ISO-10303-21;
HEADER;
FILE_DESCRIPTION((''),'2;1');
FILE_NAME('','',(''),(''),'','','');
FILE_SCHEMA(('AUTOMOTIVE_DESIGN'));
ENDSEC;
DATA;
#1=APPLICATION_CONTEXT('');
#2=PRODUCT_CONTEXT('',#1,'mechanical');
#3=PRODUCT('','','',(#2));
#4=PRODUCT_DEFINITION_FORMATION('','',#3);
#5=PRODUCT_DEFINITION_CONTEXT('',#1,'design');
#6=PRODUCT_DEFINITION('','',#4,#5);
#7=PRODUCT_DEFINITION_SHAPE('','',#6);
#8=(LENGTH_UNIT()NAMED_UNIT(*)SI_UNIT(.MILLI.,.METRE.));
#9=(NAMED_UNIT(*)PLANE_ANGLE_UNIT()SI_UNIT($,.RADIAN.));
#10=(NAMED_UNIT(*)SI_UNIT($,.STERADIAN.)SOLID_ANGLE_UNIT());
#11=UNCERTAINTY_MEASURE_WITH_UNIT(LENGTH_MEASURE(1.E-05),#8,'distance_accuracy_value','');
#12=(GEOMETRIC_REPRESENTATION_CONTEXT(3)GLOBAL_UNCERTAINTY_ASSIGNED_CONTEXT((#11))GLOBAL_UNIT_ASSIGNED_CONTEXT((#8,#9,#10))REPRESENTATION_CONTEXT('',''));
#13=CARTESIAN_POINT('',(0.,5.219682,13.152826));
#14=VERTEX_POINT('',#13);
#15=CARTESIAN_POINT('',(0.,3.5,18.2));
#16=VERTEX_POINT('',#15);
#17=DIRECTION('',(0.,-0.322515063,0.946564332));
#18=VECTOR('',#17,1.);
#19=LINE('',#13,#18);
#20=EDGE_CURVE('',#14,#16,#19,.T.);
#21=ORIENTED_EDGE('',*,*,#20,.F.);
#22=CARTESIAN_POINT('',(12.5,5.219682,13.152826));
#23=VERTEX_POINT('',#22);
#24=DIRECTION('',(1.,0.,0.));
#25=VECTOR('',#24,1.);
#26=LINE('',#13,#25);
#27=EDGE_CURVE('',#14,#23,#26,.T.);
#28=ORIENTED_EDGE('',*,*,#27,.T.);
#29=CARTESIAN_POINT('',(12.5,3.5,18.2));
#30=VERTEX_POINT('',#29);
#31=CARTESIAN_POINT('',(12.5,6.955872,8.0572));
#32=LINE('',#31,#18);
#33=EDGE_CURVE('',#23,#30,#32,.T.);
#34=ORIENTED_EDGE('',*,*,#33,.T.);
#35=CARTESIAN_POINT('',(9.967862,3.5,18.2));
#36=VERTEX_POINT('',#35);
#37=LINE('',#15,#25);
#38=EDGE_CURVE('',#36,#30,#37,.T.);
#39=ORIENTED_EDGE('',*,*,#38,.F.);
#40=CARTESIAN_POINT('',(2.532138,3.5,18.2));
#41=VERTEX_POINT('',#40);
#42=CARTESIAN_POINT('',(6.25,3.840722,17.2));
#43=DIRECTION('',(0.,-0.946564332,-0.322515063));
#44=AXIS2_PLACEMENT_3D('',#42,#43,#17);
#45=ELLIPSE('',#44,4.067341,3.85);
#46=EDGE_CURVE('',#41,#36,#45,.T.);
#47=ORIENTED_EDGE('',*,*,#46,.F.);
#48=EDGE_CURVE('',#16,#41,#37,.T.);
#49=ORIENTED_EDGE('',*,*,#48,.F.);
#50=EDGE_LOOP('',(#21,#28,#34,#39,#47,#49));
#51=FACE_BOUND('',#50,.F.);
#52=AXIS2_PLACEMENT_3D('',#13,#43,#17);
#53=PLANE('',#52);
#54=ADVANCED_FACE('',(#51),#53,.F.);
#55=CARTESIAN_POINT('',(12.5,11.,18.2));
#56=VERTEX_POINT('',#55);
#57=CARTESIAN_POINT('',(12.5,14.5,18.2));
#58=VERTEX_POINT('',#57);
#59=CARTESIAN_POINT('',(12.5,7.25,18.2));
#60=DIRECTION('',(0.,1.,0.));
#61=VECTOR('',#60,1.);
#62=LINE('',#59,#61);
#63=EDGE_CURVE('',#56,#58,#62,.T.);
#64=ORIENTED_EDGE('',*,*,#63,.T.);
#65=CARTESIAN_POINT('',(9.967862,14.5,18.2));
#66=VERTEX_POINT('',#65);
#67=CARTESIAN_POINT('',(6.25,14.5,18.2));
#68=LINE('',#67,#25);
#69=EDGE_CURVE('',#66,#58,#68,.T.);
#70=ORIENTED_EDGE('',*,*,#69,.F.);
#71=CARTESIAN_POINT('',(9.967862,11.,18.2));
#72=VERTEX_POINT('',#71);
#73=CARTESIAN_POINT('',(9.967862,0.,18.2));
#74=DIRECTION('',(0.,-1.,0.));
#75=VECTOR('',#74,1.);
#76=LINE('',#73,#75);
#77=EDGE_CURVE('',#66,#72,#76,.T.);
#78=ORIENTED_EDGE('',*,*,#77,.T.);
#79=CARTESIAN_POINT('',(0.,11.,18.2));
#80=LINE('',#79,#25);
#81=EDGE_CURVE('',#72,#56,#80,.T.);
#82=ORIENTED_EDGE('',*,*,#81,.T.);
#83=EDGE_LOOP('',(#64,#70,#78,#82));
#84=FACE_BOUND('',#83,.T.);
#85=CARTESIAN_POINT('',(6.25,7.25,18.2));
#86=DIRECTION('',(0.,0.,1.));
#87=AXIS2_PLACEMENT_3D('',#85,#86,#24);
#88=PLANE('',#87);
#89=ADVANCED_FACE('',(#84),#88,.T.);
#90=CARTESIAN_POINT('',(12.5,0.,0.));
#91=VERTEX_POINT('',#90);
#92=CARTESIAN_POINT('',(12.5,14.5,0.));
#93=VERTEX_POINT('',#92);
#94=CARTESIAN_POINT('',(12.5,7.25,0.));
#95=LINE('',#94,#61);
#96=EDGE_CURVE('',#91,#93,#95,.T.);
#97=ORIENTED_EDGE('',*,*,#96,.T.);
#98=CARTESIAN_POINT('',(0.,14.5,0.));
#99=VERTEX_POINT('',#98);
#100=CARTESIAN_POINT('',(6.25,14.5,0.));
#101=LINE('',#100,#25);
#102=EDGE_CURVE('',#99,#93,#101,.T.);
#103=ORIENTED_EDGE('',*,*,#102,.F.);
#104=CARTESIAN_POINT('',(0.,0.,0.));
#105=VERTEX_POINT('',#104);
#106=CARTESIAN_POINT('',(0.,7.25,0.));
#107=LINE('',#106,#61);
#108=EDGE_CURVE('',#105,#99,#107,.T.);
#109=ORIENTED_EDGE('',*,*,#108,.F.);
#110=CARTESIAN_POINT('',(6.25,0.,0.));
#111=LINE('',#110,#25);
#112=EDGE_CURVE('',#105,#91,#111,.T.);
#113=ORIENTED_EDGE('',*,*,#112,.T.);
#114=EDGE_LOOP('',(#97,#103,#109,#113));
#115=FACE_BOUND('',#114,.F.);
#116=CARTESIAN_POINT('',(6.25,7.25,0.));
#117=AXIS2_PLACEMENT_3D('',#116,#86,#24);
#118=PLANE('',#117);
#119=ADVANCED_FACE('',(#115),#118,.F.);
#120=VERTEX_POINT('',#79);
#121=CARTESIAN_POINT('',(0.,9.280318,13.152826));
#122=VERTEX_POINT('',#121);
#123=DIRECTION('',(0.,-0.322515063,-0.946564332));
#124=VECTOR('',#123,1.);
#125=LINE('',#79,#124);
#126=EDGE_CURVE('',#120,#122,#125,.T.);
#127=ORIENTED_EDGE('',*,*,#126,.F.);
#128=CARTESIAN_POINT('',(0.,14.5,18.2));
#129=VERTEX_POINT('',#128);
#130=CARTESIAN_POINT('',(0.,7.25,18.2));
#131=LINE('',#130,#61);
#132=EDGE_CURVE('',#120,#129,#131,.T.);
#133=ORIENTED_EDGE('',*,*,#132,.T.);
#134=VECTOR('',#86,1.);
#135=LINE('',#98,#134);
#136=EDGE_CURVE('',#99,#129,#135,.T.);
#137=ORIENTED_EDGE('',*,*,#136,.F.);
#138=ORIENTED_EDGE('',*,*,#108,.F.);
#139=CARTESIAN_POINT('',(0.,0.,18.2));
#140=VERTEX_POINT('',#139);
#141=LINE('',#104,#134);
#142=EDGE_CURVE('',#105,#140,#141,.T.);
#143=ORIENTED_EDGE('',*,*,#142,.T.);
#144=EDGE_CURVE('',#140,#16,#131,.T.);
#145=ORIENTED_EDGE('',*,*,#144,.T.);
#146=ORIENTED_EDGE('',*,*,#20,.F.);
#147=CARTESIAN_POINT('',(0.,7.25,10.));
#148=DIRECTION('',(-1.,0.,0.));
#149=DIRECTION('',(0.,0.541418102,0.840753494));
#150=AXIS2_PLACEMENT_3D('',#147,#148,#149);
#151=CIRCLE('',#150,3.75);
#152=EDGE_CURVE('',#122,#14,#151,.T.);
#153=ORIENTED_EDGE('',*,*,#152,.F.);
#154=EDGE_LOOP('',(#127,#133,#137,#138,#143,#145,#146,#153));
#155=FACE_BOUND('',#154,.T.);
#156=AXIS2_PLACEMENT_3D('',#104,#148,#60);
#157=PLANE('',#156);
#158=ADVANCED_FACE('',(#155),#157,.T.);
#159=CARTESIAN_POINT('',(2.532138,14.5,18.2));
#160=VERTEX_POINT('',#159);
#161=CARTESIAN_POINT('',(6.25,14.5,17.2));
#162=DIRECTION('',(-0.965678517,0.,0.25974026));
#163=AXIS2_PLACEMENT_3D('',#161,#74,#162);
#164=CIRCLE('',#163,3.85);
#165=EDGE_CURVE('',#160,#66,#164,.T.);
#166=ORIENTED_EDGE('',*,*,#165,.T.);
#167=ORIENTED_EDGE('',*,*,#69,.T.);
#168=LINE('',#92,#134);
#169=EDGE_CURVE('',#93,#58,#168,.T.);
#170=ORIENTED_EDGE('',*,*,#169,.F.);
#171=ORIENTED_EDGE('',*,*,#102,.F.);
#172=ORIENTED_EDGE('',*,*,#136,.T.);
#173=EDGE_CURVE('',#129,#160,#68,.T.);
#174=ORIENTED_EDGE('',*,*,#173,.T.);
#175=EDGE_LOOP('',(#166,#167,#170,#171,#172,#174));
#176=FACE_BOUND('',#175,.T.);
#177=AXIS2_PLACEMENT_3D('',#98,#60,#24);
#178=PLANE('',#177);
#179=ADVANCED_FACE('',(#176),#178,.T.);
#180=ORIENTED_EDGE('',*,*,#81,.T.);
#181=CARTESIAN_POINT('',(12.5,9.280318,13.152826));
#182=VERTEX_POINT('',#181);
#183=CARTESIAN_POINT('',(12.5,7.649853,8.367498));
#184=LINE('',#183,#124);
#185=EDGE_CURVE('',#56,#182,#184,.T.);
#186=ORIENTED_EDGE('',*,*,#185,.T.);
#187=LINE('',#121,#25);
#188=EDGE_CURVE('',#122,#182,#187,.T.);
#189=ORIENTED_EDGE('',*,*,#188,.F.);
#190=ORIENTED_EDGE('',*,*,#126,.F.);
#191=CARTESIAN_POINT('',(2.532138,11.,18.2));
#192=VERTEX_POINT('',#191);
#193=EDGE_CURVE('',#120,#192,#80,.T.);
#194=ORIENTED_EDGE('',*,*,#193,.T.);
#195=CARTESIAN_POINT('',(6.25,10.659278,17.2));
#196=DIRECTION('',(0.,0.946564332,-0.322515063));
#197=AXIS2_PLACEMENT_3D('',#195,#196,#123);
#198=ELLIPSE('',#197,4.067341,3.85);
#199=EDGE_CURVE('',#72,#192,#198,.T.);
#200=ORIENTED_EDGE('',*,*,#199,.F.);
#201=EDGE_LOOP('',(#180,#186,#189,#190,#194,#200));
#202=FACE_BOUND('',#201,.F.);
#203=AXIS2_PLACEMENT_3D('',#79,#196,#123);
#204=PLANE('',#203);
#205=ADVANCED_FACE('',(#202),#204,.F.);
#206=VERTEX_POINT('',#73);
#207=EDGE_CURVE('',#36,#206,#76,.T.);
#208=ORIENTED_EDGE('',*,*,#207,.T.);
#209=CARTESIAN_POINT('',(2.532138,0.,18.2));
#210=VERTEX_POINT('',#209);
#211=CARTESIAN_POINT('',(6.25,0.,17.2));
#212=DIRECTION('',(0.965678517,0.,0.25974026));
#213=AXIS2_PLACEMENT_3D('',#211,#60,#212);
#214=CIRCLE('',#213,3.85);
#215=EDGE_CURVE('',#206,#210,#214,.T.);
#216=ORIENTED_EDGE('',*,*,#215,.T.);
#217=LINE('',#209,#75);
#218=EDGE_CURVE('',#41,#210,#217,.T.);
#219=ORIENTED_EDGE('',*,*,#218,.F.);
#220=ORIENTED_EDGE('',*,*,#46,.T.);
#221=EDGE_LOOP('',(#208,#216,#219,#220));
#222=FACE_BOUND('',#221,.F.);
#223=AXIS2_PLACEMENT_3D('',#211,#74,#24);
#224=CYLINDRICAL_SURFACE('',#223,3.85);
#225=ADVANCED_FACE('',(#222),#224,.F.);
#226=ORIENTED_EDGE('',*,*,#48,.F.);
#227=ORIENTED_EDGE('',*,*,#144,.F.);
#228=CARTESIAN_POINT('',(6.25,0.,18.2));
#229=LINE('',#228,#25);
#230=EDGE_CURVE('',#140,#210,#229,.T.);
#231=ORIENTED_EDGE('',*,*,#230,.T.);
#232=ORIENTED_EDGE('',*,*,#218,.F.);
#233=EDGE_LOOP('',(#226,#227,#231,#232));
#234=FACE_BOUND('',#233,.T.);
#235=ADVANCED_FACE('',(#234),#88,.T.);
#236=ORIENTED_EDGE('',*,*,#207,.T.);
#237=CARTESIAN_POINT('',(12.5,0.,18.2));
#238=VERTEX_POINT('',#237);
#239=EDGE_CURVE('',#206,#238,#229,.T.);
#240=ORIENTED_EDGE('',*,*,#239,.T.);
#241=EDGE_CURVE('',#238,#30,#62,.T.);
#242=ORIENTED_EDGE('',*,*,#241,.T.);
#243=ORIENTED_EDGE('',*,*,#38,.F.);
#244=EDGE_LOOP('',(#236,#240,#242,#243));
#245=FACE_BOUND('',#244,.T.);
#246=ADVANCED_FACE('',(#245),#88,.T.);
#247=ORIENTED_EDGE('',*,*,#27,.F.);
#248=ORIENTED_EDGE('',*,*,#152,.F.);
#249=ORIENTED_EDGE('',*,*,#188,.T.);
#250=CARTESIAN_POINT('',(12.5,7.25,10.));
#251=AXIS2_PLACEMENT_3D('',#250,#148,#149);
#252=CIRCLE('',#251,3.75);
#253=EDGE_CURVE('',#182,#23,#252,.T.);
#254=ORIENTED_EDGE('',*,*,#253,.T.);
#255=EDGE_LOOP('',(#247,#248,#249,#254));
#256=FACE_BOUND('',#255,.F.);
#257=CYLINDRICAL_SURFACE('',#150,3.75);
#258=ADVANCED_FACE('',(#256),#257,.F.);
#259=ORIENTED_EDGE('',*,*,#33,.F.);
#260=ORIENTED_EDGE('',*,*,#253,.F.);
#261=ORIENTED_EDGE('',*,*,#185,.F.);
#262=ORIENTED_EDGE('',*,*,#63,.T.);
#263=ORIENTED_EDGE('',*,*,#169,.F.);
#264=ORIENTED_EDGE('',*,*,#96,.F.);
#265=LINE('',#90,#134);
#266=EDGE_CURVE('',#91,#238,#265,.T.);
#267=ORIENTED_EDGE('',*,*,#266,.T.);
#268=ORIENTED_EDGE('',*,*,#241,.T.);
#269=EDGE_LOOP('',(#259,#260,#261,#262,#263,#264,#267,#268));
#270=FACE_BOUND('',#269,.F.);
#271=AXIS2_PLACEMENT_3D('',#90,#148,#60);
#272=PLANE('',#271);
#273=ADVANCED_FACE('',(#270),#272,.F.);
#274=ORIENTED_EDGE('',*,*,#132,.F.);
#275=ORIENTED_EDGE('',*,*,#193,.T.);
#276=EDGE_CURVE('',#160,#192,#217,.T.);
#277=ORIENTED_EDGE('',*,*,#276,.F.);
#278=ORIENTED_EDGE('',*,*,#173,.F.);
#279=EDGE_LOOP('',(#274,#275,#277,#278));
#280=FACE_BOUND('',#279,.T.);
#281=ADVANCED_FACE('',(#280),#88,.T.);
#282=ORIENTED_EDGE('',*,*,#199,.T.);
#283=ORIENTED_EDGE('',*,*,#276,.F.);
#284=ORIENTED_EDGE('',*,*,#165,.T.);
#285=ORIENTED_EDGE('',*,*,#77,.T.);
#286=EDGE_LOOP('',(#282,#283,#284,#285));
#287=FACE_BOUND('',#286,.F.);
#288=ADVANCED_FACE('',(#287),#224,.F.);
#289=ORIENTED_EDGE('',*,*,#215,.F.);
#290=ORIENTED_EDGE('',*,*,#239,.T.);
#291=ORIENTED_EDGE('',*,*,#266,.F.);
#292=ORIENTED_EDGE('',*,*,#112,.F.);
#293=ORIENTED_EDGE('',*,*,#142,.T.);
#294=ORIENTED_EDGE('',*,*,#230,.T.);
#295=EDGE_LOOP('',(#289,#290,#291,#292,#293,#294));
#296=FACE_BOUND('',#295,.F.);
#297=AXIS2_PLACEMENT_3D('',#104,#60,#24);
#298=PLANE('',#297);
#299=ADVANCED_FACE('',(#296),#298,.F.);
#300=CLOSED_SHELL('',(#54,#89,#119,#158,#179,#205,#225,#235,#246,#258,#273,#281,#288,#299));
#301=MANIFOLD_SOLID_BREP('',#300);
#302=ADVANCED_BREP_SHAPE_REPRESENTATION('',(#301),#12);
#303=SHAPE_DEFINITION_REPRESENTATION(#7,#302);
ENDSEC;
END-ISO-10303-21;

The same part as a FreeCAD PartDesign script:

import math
import FreeCAD as App
import Part
import Sketcher

doc = App.newDocument("Part")
params = doc.addObject("Spreadsheet::Sheet", "Params")
for row, (alias, value) in enumerate([
    ("sketch1_width", "12.5 mm"),
    ("sketch1_height", "14.5 mm"),
    ("pad1_length", "18.2 mm"),
    ("sketch2_diameter", "7.7 mm"),
    ("pocket1_length", "25 mm"),
    ("sketch3_radius", "3.75 mm"),
    ("sketch3_width", "7.5 mm"),
    ("pocket2_length", "25 mm"),
], start=1):
    params.set(f"A{row}", alias)
    params.set(f"B{row}", "=" + value)
    params.setAlias(f"B{row}", alias)

body = doc.addObject("PartDesign::Body", "Body")

# Sketch on XY plane
sketch1 = body.newObject("Sketcher::SketchObject", "Sketch")
sketch1.AttachmentSupport = (doc.getObject("XY_Plane"), [""])
sketch1.MapMode = "FlatFace"
sketch1.addGeometry([
    Part.LineSegment(App.Vector(0, 14, 0), App.Vector(0, 0, 0)),
    Part.LineSegment(App.Vector(0, 0, 0), App.Vector(12, 0, 0)),
    Part.LineSegment(App.Vector(12, 0, 0), App.Vector(12, 14, 0)),
    Part.LineSegment(App.Vector(12, 14, 0), App.Vector(0, 14, 0)),
], False)
sketch1.addConstraint([
    Sketcher.Constraint("Coincident", 0, 2, 1, 1),
    Sketcher.Constraint("Coincident", 1, 2, 2, 1),
    Sketcher.Constraint("Coincident", 2, 2, 3, 1),
    Sketcher.Constraint("Coincident", 3, 2, 0, 1),
    Sketcher.Constraint("Vertical", 0),
    Sketcher.Constraint("Horizontal", 1),
    Sketcher.Constraint("Vertical", 2),
    Sketcher.Constraint("Horizontal", 3),
    Sketcher.Constraint("Coincident", 0, 2, -1, 1),
    Sketcher.Constraint("DistanceX", 1, 1, 1, 2, 12.5),
    Sketcher.Constraint("DistanceY", 0, 2, 0, 1, 14.5),
])
sketch1.setExpression("Constraints[9]", "Params.sketch1_width")
sketch1.setExpression("Constraints[10]", "Params.sketch1_height")
pad1 = body.newObject("PartDesign::Pad", "Pad")
pad1.Profile = sketch1
pad1.setExpression("Length", "Params.pad1_length")

# Sketch on XZ plane
sketch2 = body.newObject("Sketcher::SketchObject", "Sketch001")
sketch2.AttachmentSupport = (doc.getObject("XZ_Plane"), [""])
sketch2.MapMode = "FlatFace"
sketch2.addGeometry(Part.Circle(App.Vector(6.2, 17.2, 0), App.Vector(0, 0, 1), 3.9), False)
sketch2.addConstraint([
    Sketcher.Constraint("Diameter", 0, 7.7),
    Sketcher.Constraint("DistanceY", -1, 1, 0, 3, 17.2),
    Sketcher.Constraint("DistanceX", -1, 1, 0, 3, 6.25),
])
sketch2.setExpression("Constraints[0]", "Params.sketch2_diameter")
pocket1 = body.newObject("PartDesign::Pocket", "Pocket")
pocket1.Profile = sketch2
pocket1.setExpression("Length", "Params.pocket1_length")

# Sketch on YZ plane
sketch3 = body.newObject("Sketcher::SketchObject", "Sketch002")
sketch3.AttachmentSupport = (doc.getObject("YZ_Plane"), [""])
sketch3.MapMode = "FlatFace"
sketch3.addGeometry([
    Part.LineSegment(App.Vector(11, 18.2, 0), App.Vector(9.3, 13.2, 0)),
    Part.ArcOfCircle(Part.Circle(App.Vector(7.2, 10, 0), App.Vector(0, 0, 1), 3.8), math.radians(123), math.radians(417)),
    Part.LineSegment(App.Vector(5.2, 13.2, 0), App.Vector(3.5, 18.2, 0)),
    Part.LineSegment(App.Vector(3.5, 18.2, 0), App.Vector(11, 18.2, 0)),
], False)
sketch3.addConstraint([
    Sketcher.Constraint("Coincident", 0, 2, 1, 2),
    Sketcher.Constraint("Coincident", 1, 1, 2, 1),
    Sketcher.Constraint("Coincident", 2, 2, 3, 1),
    Sketcher.Constraint("Coincident", 3, 2, 0, 1),
    Sketcher.Constraint("Horizontal", 3),
    Sketcher.Constraint("Horizontal", 0, 2, 1, 1),
    Sketcher.Constraint("Equal", 0, 2),
    Sketcher.Constraint("Radius", 1, 3.75),
    Sketcher.Constraint("DistanceX", 3, 1, 3, 2, 7.5),
    Sketcher.Constraint("DistanceY", -1, 1, 1, 3, 10.0),
    Sketcher.Constraint("DistanceX", -1, 1, 3, 2, 11.0),
    Sketcher.Constraint("DistanceY", -1, 1, 2, 2, 18.2),
    Sketcher.Constraint("Distance", 0, 5.332098),
])
sketch3.setExpression("Constraints[7]", "Params.sketch3_radius")
sketch3.setExpression("Constraints[8]", "Params.sketch3_width")
pocket2 = body.newObject("PartDesign::Pocket", "Pocket001")
pocket2.Profile = sketch3
pocket2.setExpression("Length", "Params.pocket2_length")
pocket2.Reversed = True

doc.recompute()
